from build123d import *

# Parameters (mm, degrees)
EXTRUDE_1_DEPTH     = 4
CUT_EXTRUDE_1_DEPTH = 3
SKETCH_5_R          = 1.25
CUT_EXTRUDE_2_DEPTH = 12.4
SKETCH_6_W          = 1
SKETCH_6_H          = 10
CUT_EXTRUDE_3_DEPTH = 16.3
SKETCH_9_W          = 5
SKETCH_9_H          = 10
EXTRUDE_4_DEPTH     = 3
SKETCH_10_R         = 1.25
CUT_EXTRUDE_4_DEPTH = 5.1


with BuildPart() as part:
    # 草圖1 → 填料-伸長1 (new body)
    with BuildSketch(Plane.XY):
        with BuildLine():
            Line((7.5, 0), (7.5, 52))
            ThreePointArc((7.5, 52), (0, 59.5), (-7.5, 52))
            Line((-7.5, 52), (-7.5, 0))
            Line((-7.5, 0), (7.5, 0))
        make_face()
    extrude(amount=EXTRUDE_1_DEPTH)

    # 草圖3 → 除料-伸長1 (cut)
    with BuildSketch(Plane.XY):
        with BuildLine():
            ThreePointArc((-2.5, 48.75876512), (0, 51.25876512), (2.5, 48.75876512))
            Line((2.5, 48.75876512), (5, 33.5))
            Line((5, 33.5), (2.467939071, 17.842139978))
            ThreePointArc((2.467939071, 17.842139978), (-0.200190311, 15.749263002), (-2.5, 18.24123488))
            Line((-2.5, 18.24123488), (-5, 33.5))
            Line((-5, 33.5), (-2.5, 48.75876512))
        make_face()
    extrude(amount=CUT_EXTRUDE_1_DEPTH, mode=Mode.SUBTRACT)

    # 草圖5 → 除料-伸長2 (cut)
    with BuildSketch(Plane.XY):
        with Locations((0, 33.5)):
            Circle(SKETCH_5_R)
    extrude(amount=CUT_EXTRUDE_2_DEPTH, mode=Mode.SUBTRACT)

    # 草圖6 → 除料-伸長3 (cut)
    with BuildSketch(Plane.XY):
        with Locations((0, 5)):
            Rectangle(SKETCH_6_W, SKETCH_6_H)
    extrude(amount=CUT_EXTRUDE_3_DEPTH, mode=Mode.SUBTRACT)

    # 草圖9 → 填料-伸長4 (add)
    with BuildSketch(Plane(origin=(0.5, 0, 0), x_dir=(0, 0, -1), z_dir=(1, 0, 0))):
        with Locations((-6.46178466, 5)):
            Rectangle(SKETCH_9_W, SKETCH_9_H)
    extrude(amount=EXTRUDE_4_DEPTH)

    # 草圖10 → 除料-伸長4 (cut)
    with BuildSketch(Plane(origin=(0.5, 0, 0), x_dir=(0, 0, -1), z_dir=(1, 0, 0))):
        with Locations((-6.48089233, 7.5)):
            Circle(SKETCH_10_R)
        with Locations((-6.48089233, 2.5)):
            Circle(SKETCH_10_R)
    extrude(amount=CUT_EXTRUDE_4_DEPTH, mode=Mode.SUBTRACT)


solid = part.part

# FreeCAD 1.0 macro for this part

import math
import FreeCAD as App
import Part
import Sketcher
from FreeCAD import Vector


def add_polygon(sketch, points):
    """Adds a closed chain of lines whose ends are joined by coincident constraints."""
    first, n = sketch.GeometryCount, len(points)
    for a, b in zip(points, points[1:] + points[:1]):
        sketch.addGeometry(Part.LineSegment(App.Vector(*a, 0), App.Vector(*b, 0)), False)
    for i in range(n):
        sketch.addConstraint(Sketcher.Constraint("Coincident", first + i, 2, first + (i + 1) % n, 1))

doc = App.newDocument("Part")
body = doc.addObject("PartDesign::Body", "Body")

sketch1 = body.newObject("Sketcher::SketchObject", "Sketch")
sketch1.AttachmentSupport = (doc.getObject("XY_Plane"), [""])
sketch1.MapMode = "FlatFace"
sketch1.addGeometry(Part.LineSegment(Vector(8, 0, 0), Vector(8, 52, 0)), False)
sketch1.addGeometry(Part.ArcOfCircle(Part.Circle(Vector(0, 52, 0), Vector(0, 0, 1), 8), math.radians(0), math.radians(180)), False)
sketch1.addGeometry(Part.LineSegment(Vector(-8, 52, 0), Vector(-8, 0, 0)), False)
sketch1.addGeometry(Part.LineSegment(Vector(-8, 0, 0), Vector(8, 0, 0)), False)
sketch1.addConstraint(Sketcher.Constraint("Tangent", 0, 2, 1, 1))
sketch1.addConstraint(Sketcher.Constraint("Tangent", 1, 2, 2, 1))
sketch1.addConstraint(Sketcher.Constraint("Coincident", 2, 2, 3, 1))
sketch1.addConstraint(Sketcher.Constraint("Coincident", 3, 2, 0, 1))
sketch1.addConstraint(Sketcher.Constraint("Vertical", 0))
sketch1.addConstraint(Sketcher.Constraint("Vertical", 2))
sketch1.addConstraint(Sketcher.Constraint("Horizontal", 3))
sketch1.addConstraint(Sketcher.Constraint("Symmetric", 2, 2, 3, 2, -1, 1))
sketch1.addConstraint(Sketcher.Constraint("Radius", 1, 7.5))
sketch1.addConstraint(Sketcher.Constraint("DistanceY", 0, 1, 0, 2, 52.0))
pad1 = body.newObject("PartDesign::Pad", "Pad")
pad1.Profile = sketch1
pad1.Length = 4

sketch2 = body.newObject("Sketcher::SketchObject", "Sketch001")
sketch2.AttachmentSupport = (doc.getObject("XY_Plane"), [""])
sketch2.MapMode = "FlatFace"
sketch2.addGeometry(Part.ArcOfCircle(Part.Circle(Vector(0, 48.8, 0), Vector(0, 0, 1), 2.5), math.radians(0), math.radians(180)), False)
sketch2.addGeometry(Part.LineSegment(Vector(-2.5, 48.8, 0), Vector(-5, 33.5, 0)), False)
sketch2.addGeometry(Part.LineSegment(Vector(-5, 33.5, 0), Vector(-2.5, 18.2, 0)), False)
sketch2.addGeometry(Part.ArcOfCircle(Part.Circle(Vector(0, 18.2, 0), Vector(0, 0, 1), 2.5), math.radians(180), math.radians(351)), False)
sketch2.addGeometry(Part.LineSegment(Vector(2.5, 17.8, 0), Vector(5, 33.5, 0)), False)
sketch2.addGeometry(Part.LineSegment(Vector(5, 33.5, 0), Vector(2.5, 48.8, 0)), False)
sketch2.addConstraint(Sketcher.Constraint("Coincident", 0, 2, 1, 1))
sketch2.addConstraint(Sketcher.Constraint("Coincident", 1, 2, 2, 1))
sketch2.addConstraint(Sketcher.Constraint("Coincident", 2, 2, 3, 1))
sketch2.addConstraint(Sketcher.Constraint("Tangent", 3, 2, 4, 1))
sketch2.addConstraint(Sketcher.Constraint("Coincident", 4, 2, 5, 1))
sketch2.addConstraint(Sketcher.Constraint("Coincident", 5, 2, 0, 1))
sketch2.addConstraint(Sketcher.Constraint("Equal", 0, 3))
sketch2.addConstraint(Sketcher.Constraint("Symmetric", 1, 2, 4, 2, -2))
sketch2.addConstraint(Sketcher.Constraint("Symmetric", 0, 2, 5, 2, -2))
sketch2.addConstraint(Sketcher.Constraint("PointOnObject", 3, 3, -2))
sketch2.addConstraint(Sketcher.Constraint("Parallel", 2, 5))
sketch2.addConstraint(Sketcher.Constraint("Horizontal", 3, 3, 2, 2))
sketch2.addConstraint(Sketcher.Constraint("Radius", 0, 2.5))
sketch2.addConstraint(Sketcher.Constraint("DistanceX", 1, 2, -1, 1, 5.0))
sketch2.addConstraint(Sketcher.Constraint("DistanceY", -1, 1, 1, 2, 33.5))
sketch2.addConstraint(Sketcher.Constraint("Distance", 1, 15.462209))
sketch2.addConstraint(Sketcher.Constraint("DistanceY", 3, 3, 0, 3, 30.51753))
pocket1 = body.newObject("PartDesign::Pocket", "Pocket")
pocket1.Profile = sketch2
pocket1.Length = 3
pocket1.Reversed = True

sketch3 = body.newObject("Sketcher::SketchObject", "Sketch002")
sketch3.AttachmentSupport = (doc.getObject("XY_Plane"), [""])
sketch3.MapMode = "FlatFace"
sketch3.addGeometry(Part.Circle(Vector(0, 33.5, 0), Vector(0, 0, 1), 1.2), False)
sketch3.addConstraint(Sketcher.Constraint("PointOnObject", 0, 3, -2))
sketch3.addConstraint(Sketcher.Constraint("Diameter", 0, 2.5))
sketch3.addConstraint(Sketcher.Constraint("DistanceY", -1, 1, 0, 3, 33.5))
pocket2 = body.newObject("PartDesign::Pocket", "Pocket001")
pocket2.Profile = sketch3
pocket2.Length = 12.4
pocket2.Reversed = True

sketch4 = body.newObject("Sketcher::SketchObject", "Sketch003")
sketch4.AttachmentSupport = (doc.getObject("XY_Plane"), [""])
sketch4.MapMode = "FlatFace"
add_polygon(sketch4, [(-0.5, 10), (-0.5, 0), (0.5, 0), (0.5, 10)])
sketch4.addConstraint(Sketcher.Constraint("Vertical", 0))
sketch4.addConstraint(Sketcher.Constraint("Horizontal", 1))
sketch4.addConstraint(Sketcher.Constraint("Vertical", 2))
sketch4.addConstraint(Sketcher.Constraint("Horizontal", 3))
sketch4.addConstraint(Sketcher.Constraint("Symmetric", 0, 2, 1, 2, -1, 1))
sketch4.addConstraint(Sketcher.Constraint("DistanceX", 1, 1, 1, 2, 1.0))
sketch4.addConstraint(Sketcher.Constraint("DistanceY", 0, 2, 0, 1, 10.0))
pocket3 = body.newObject("PartDesign::Pocket", "Pocket002")
pocket3.Profile = sketch4
pocket3.Length = 16.3
pocket3.Reversed = True

sketch5 = body.newObject("Sketcher::SketchObject", "Sketch004")
sketch5.AttachmentSupport = (doc.getObject("YZ_Plane"), [""])
sketch5.MapMode = "FlatFace"
sketch5.AttachmentOffset = App.Placement(Vector(0, 0, 0.5), App.Rotation())
add_polygon(sketch5, [(10, 9), (0, 9), (0, 4), (10, 4)])
sketch5.addConstraint(Sketcher.Constraint("Horizontal", 0))
sketch5.addConstraint(Sketcher.Constraint("Vertical", 1))
sketch5.addConstraint(Sketcher.Constraint("Horizontal", 2))
sketch5.addConstraint(Sketcher.Constraint("Vertical", 3))
sketch5.addConstraint(Sketcher.Constraint("PointOnObject", 0, 2, -2))
sketch5.addConstraint(Sketcher.Constraint("DistanceX", 0, 2, 0, 1, 10.0))
sketch5.addConstraint(Sketcher.Constraint("DistanceY", 1, 2, 1, 1, 5.0))
sketch5.addConstraint(Sketcher.Constraint("DistanceY", -1, 1, 0, 2, 8.961785))
pad2 = body.newObject("PartDesign::Pad", "Pad001")
pad2.Profile = sketch5
pad2.Length = 3

sketch6 = body.newObject("Sketcher::SketchObject", "Sketch005")
sketch6.AttachmentSupport = (doc.getObject("YZ_Plane"), [""])
sketch6.MapMode = "FlatFace"
sketch6.AttachmentOffset = App.Placement(Vector(0, 0, 0.5), App.Rotation())
sketch6.addGeometry(Part.Circle(Vector(7.5, 6.5, 0), Vector(0, 0, 1), 1.2), False)
sketch6.addGeometry(Part.Circle(Vector(2.5, 6.5, 0), Vector(0, 0, 1), 1.2), False)
sketch6.addConstraint(Sketcher.Constraint("Equal", 0, 1))
sketch6.addConstraint(Sketcher.Constraint("Horizontal", 0, 3, 1, 3))
sketch6.addConstraint(Sketcher.Constraint("Diameter", 0, 2.5))
sketch6.addConstraint(Sketcher.Constraint("DistanceX", 1, 3, 0, 3, 5.0))
sketch6.addConstraint(Sketcher.Constraint("DistanceX", -1, 1, 0, 3, 7.5))
sketch6.addConstraint(Sketcher.Constraint("DistanceY", -1, 1, 0, 3, 6.480892))
pocket4 = body.newObject("PartDesign::Pocket", "Pocket003")
pocket4.Profile = sketch6
pocket4.Length = 5.1
pocket4.Reversed = True

doc.recompute()
